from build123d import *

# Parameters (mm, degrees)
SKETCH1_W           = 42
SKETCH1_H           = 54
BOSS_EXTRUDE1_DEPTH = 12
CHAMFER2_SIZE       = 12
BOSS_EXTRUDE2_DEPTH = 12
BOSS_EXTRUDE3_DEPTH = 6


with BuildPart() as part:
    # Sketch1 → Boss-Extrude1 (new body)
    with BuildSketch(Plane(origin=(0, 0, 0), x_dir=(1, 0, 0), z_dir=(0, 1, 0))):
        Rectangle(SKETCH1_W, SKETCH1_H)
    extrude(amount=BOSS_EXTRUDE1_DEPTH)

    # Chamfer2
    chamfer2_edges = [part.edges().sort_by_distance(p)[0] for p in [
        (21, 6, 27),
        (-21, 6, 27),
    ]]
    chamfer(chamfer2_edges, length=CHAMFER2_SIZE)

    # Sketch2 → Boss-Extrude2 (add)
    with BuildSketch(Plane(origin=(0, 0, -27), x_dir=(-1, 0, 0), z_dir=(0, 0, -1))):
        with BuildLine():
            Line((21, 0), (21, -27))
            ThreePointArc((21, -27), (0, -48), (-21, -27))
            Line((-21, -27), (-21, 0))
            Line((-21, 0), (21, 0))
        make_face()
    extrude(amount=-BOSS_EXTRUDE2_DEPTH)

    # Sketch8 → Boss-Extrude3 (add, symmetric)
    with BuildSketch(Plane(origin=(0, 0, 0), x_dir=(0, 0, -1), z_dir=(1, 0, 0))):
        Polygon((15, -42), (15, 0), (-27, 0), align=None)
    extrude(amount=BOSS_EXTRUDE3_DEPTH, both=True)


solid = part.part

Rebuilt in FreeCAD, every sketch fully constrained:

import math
import FreeCAD as App
import Part
import Sketcher
from FreeCAD import Vector
Q = App.Units.Quantity


def edges_at(feature, points):
    """Names of the edges that pass closest to the given points."""
    edges = feature.Shape.Edges
    near = lambda p: min(range(len(edges)), key=lambda i: edges[i].distToShape(Part.Vertex(*p))[0])
    return sorted({f"Edge{near(p) + 1}" for p in points})


def add_polygon(sketch, points):
    """Adds a closed chain of lines whose ends are joined by coincident constraints."""
    first, n = sketch.GeometryCount, len(points)
    for a, b in zip(points, points[1:] + points[:1]):
        sketch.addGeometry(Part.LineSegment(App.Vector(*a, 0), App.Vector(*b, 0)), False)
    for i in range(n):
        sketch.addConstraint(Sketcher.Constraint("Coincident", first + i, 2, first + (i + 1) % n, 1))

doc = App.newDocument("Part")
body = doc.addObject("PartDesign::Body", "Body")

sketch1 = body.newObject("Sketcher::SketchObject", "Sketch")
sketch1.AttachmentSupport = (doc.getObject("XZ_Plane"), [""])
sketch1.MapMode = "FlatFace"
add_polygon(sketch1, [(-21, -27), (-21, 27), (21, 27), (21, -27)])
sketch1.addConstraint([
    Sketcher.Constraint("Vertical", 0),
    Sketcher.Constraint("Horizontal", 1),
    Sketcher.Constraint("Vertical", 2),
    Sketcher.Constraint("Horizontal", 3),
    Sketcher.Constraint("Symmetric", 0, 2, 2, 2, -1, 1),
    Sketcher.Constraint("DistanceX", 1, 1, 1, 2, Q("42 mm")),
    Sketcher.Constraint("DistanceY", 0, 1, 0, 2, Q("54 mm")),
])
pad1 = body.newObject("PartDesign::Pad", "Pad")
pad1.Profile = sketch1
pad1.Length = 12
pad1.Reversed = True
doc.recompute()

chamfer = body.newObject("PartDesign::Chamfer", "Chamfer")
chamfer.Base = (pad1, edges_at(pad1, [(21, 6, 27), (-21, 6, 27)]))
chamfer.Size = 12

sketch2 = body.newObject("Sketcher::SketchObject", "Sketch001")
sketch2.AttachmentSupport = (doc.getObject("XY_Plane"), [""])
sketch2.MapMode = "FlatFace"
sketch2.AttachmentOffset = App.Placement(Vector(0, 0, -27), App.Rotation())
sketch2.addGeometry([
    Part.LineSegment(Vector(-21, -27, 0), Vector(-21, 0, 0)),
    Part.LineSegment(Vector(-21, 0, 0), Vector(21, 0, 0)),
    Part.LineSegment(Vector(21, 0, 0), Vector(21, -27, 0)),
    Part.ArcOfCircle(Part.Circle(Vector(0, -27, 0), Vector(0, 0, 1), 21), math.radians(180), math.radians(360)),
], False)
sketch2.addConstraint([
    Sketcher.Constraint("Coincident", 0, 2, 1, 1),
    Sketcher.Constraint("Coincident", 1, 2, 2, 1),
    Sketcher.Constraint("Tangent", 2, 2, 3, 2),
    Sketcher.Constraint("Tangent", 3, 1, 0, 1),
    Sketcher.Constraint("Vertical", 0),
    Sketcher.Constraint("Horizontal", 1),
    Sketcher.Constraint("Vertical", 2),
    Sketcher.Constraint("Symmetric", 0, 2, 1, 2, -1, 1),
    Sketcher.Constraint("Radius", 3, Q("21 mm")),
    Sketcher.Constraint("DistanceY", 0, 1, 0, 2, Q("27 mm")),
])
pad2 = body.newObject("PartDesign::Pad", "Pad001")
pad2.Profile = sketch2
pad2.Length = 12

sketch3 = body.newObject("Sketcher::SketchObject", "Sketch002")
sketch3.AttachmentSupport = (doc.getObject("YZ_Plane"), [""])
sketch3.MapMode = "FlatFace"
add_polygon(sketch3, [(-42, -15), (0, -15), (0, 27)])
sketch3.addConstraint([
    Sketcher.Constraint("Horizontal", 0),
    Sketcher.Constraint("Vertical", 1),
    Sketcher.Constraint("PointOnObject", 0, 2, -2),
    Sketcher.Constraint("Equal", 0, 1),
    Sketcher.Constraint("DistanceX", 0, 1, 0, 2, Q("42 mm")),
    Sketcher.Constraint("DistanceY", 0, 2, -1, 1, Q("15 mm")),
])
pad3 = body.newObject("PartDesign::Pad", "Pad002")
pad3.Profile = sketch3
pad3.Length = 12
pad3.Midplane = True

doc.recompute()
